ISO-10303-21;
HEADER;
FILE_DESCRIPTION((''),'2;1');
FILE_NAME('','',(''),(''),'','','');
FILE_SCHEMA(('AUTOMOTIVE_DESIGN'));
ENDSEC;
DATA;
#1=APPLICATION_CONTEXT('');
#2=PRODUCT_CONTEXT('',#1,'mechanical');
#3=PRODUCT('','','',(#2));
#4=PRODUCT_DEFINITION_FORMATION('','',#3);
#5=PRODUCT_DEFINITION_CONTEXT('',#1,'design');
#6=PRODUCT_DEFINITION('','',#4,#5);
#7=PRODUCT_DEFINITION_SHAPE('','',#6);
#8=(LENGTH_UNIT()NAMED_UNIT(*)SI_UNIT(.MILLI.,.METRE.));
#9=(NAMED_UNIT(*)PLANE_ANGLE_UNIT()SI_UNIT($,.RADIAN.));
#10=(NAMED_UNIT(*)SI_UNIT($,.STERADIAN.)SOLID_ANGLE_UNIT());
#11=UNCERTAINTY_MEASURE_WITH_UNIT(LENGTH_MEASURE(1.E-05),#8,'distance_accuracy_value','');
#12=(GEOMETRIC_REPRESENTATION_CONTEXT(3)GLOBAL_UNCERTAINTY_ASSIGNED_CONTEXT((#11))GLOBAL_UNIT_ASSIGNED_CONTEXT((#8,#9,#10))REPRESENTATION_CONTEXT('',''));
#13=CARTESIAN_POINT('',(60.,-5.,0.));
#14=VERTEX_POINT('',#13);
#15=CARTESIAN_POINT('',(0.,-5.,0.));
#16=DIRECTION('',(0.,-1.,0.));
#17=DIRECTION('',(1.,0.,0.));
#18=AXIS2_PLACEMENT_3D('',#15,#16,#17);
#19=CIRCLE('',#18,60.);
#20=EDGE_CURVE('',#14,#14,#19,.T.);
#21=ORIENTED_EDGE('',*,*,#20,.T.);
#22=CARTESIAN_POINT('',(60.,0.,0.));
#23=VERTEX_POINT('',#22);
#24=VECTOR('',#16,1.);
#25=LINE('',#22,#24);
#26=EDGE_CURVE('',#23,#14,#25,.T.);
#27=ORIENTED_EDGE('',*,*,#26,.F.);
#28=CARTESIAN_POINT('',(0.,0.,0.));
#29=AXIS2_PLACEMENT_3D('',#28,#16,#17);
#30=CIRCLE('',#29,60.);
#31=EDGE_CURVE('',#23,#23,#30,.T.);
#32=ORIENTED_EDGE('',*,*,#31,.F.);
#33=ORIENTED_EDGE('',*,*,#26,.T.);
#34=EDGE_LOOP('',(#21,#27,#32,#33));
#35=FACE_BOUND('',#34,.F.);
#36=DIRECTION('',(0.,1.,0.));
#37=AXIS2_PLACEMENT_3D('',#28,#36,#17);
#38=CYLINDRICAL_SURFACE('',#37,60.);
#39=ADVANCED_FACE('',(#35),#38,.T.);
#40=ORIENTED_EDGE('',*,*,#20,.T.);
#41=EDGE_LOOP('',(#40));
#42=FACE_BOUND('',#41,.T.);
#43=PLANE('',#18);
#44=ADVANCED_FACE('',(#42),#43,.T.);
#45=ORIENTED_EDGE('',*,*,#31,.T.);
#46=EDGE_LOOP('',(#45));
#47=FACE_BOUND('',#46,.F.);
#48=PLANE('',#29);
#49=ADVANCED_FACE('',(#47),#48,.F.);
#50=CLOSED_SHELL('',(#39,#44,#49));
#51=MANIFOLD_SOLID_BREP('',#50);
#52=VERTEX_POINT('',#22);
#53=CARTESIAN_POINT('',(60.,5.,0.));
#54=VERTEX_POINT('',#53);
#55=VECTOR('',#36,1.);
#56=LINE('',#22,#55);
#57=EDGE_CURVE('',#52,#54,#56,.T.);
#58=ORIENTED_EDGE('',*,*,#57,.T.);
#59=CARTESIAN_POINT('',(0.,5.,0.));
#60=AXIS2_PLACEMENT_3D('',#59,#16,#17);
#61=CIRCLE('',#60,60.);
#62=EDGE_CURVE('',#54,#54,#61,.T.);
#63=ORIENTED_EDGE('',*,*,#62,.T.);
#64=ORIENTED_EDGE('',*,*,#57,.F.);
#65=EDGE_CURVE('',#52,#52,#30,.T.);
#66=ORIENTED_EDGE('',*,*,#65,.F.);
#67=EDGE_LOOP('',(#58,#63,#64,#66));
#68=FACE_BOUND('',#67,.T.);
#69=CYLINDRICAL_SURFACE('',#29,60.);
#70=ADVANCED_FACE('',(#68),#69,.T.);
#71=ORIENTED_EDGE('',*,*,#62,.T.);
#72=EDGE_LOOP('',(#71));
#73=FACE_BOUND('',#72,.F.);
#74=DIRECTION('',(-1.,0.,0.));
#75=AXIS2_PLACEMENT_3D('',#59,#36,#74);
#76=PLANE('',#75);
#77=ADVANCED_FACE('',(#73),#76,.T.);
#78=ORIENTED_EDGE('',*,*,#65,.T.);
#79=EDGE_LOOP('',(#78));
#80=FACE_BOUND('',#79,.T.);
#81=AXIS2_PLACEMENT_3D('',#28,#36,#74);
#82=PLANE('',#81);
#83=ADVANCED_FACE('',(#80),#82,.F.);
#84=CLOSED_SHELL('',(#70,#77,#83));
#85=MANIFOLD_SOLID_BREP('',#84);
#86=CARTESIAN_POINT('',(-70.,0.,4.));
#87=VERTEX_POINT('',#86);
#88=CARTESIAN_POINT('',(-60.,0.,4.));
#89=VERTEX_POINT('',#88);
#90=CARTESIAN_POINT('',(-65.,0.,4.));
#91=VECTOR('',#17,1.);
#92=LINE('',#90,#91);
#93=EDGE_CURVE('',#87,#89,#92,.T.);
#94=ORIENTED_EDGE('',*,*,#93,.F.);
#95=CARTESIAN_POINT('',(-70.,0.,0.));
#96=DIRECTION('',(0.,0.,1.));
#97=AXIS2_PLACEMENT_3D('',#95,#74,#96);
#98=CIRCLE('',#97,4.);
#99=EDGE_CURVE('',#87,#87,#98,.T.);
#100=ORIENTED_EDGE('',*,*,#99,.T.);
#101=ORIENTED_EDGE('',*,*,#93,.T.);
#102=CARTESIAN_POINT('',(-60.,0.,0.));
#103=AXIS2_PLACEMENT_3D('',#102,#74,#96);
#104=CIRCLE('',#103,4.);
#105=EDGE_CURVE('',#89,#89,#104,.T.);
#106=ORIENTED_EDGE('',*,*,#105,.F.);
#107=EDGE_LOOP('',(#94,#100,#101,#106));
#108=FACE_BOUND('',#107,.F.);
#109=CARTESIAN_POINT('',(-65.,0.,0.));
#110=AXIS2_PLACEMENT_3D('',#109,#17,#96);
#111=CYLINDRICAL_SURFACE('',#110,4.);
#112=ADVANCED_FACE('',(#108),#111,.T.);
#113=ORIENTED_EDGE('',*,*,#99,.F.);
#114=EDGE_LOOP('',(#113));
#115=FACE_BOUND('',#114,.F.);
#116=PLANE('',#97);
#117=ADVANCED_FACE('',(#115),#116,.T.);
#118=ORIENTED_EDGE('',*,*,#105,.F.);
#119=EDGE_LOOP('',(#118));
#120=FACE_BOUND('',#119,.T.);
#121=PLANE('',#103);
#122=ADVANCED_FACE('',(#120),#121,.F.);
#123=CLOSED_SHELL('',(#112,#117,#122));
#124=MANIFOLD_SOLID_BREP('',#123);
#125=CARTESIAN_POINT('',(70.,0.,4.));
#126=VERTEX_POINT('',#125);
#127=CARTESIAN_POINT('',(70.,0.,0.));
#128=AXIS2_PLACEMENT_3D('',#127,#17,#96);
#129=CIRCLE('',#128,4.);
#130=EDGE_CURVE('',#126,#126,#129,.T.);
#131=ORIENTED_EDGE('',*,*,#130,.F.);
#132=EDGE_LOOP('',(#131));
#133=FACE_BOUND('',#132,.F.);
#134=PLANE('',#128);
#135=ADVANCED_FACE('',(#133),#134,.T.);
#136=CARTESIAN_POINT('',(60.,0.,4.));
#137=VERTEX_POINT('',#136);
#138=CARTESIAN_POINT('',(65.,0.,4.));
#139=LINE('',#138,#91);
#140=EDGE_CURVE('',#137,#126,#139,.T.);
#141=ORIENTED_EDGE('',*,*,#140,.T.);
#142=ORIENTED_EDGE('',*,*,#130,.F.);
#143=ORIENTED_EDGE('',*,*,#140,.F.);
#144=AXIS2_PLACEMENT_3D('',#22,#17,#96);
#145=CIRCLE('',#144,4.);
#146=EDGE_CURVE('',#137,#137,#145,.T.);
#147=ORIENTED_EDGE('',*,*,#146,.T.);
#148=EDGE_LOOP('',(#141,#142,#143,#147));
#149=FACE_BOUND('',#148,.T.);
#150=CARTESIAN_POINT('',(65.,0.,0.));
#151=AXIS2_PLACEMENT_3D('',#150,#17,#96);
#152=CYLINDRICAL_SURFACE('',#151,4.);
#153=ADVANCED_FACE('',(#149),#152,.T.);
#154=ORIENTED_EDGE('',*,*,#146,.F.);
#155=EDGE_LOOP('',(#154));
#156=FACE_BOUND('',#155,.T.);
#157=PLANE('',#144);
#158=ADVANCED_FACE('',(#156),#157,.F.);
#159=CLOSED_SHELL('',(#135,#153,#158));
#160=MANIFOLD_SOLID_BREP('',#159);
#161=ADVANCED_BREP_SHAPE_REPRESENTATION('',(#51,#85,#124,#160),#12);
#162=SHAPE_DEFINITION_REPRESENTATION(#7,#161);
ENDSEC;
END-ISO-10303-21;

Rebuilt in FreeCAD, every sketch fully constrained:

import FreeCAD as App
import Part
import Sketcher

doc = App.newDocument("Part")
body = doc.addObject("PartDesign::Body", "Body")

sketch1 = body.newObject("Sketcher::SketchObject", "Sketch")
sketch1.AttachmentSupport = (doc.getObject("XZ_Plane"), [""])
sketch1.MapMode = "FlatFace"
sketch1.addGeometry(Part.LineSegment(App.Vector(-70, 4, 0), App.Vector(-70, 0, 0)), False)
sketch1.addGeometry(Part.LineSegment(App.Vector(-70, 0, 0), App.Vector(-60, 0, 0)), False)
sketch1.addGeometry(Part.LineSegment(App.Vector(-60, 0, 0), App.Vector(-60, 4, 0)), False)
sketch1.addGeometry(Part.LineSegment(App.Vector(-60, 4, 0), App.Vector(-70, 4, 0)), False)
sketch1.addConstraint(Sketcher.Constraint("Coincident", 0, 2, 1, 1))
sketch1.addConstraint(Sketcher.Constraint("Coincident", 1, 2, 2, 1))
sketch1.addConstraint(Sketcher.Constraint("Coincident", 2, 2, 3, 1))
sketch1.addConstraint(Sketcher.Constraint("Coincident", 3, 2, 0, 1))
sketch1.addConstraint(Sketcher.Constraint("Vertical", 0))
sketch1.addConstraint(Sketcher.Constraint("Horizontal", 1))
sketch1.addConstraint(Sketcher.Constraint("Vertical", 2))
sketch1.addConstraint(Sketcher.Constraint("Horizontal", 3))
sketch1.addConstraint(Sketcher.Constraint("PointOnObject", 0, 2, -1))
sketch1.addConstraint(Sketcher.Constraint("DistanceX", 1, 1, 1, 2, 10.0))
sketch1.addConstraint(Sketcher.Constraint("DistanceY", 0, 2, 0, 1, 4.0))
sketch1.addConstraint(Sketcher.Constraint("DistanceX", 0, 2, -1, 1, 70.0))
revolution = body.newObject("PartDesign::Revolution", "Revolution")
revolution.Profile = sketch1
revolution.ReferenceAxis = (sketch1, ["H_Axis"])
revolution.Angle = 360
body2 = doc.addObject("PartDesign::Body", "Body001")

sketch2 = body2.newObject("Sketcher::SketchObject", "Sketch001")
sketch2.AttachmentSupport = (doc.getObject("XZ_Plane001"), [""])
sketch2.MapMode = "FlatFace"
sketch2.addGeometry(Part.LineSegment(App.Vector(60, 4, 0), App.Vector(60, 0, 0)), False)
sketch2.addGeometry(Part.LineSegment(App.Vector(60, 0, 0), App.Vector(70, 0, 0)), False)
sketch2.addGeometry(Part.LineSegment(App.Vector(70, 0, 0), App.Vector(70, 4, 0)), False)
sketch2.addGeometry(Part.LineSegment(App.Vector(70, 4, 0), App.Vector(60, 4, 0)), False)
sketch2.addConstraint(Sketcher.Constraint("Coincident", 0, 2, 1, 1))
sketch2.addConstraint(Sketcher.Constraint("Coincident", 1, 2, 2, 1))
sketch2.addConstraint(Sketcher.Constraint("Coincident", 2, 2, 3, 1))
sketch2.addConstraint(Sketcher.Constraint("Coincident", 3, 2, 0, 1))
sketch2.addConstraint(Sketcher.Constraint("Vertical", 0))
sketch2.addConstraint(Sketcher.Constraint("Horizontal", 1))
sketch2.addConstraint(Sketcher.Constraint("Vertical", 2))
sketch2.addConstraint(Sketcher.Constraint("Horizontal", 3))
sketch2.addConstraint(Sketcher.Constraint("PointOnObject", 0, 2, -1))
sketch2.addConstraint(Sketcher.Constraint("DistanceX", 1, 1, 1, 2, 10.0))
sketch2.addConstraint(Sketcher.Constraint("DistanceY", 0, 2, 0, 1, 4.0))
sketch2.addConstraint(Sketcher.Constraint("DistanceX", -1, 1, 0, 2, 60.0))
revolution2 = body2.newObject("PartDesign::Revolution", "Revolution001")
revolution2.Profile = sketch2
revolution2.ReferenceAxis = (sketch2, ["H_Axis"])
revolution2.Angle = 360
body3 = doc.addObject("PartDesign::Body", "Body002")

sketch3 = body3.newObject("Sketcher::SketchObject", "Sketch002")
sketch3.AttachmentSupport = (doc.getObject("XZ_Plane002"), [""])
sketch3.MapMode = "FlatFace"
sketch3.addGeometry(Part.Circle(App.Vector(0, 0, 0), App.Vector(0, 0, 1), 60), False)
sketch3.addConstraint(Sketcher.Constraint("Coincident", 0, 3, -1, 1))
sketch3.addConstraint(Sketcher.Constraint("Diameter", 0, 120.0))
pad1 = body3.newObject("PartDesign::Pad", "Pad")
pad1.Profile = sketch3
pad1.Length = 5
body4 = doc.addObject("PartDesign::Body", "Body003")
doc.recompute()

mirroring = doc.addObject("Part::Mirroring", "Mirroring")
mirroring.Source = body3
mirroring.Base = App.Vector(0, 0, 0)
mirroring.Normal = App.Vector(0, -1, 0)
body4.BaseFeature = mirroring
doc.recompute()
mirroring.Visibility = False

doc.recompute()
